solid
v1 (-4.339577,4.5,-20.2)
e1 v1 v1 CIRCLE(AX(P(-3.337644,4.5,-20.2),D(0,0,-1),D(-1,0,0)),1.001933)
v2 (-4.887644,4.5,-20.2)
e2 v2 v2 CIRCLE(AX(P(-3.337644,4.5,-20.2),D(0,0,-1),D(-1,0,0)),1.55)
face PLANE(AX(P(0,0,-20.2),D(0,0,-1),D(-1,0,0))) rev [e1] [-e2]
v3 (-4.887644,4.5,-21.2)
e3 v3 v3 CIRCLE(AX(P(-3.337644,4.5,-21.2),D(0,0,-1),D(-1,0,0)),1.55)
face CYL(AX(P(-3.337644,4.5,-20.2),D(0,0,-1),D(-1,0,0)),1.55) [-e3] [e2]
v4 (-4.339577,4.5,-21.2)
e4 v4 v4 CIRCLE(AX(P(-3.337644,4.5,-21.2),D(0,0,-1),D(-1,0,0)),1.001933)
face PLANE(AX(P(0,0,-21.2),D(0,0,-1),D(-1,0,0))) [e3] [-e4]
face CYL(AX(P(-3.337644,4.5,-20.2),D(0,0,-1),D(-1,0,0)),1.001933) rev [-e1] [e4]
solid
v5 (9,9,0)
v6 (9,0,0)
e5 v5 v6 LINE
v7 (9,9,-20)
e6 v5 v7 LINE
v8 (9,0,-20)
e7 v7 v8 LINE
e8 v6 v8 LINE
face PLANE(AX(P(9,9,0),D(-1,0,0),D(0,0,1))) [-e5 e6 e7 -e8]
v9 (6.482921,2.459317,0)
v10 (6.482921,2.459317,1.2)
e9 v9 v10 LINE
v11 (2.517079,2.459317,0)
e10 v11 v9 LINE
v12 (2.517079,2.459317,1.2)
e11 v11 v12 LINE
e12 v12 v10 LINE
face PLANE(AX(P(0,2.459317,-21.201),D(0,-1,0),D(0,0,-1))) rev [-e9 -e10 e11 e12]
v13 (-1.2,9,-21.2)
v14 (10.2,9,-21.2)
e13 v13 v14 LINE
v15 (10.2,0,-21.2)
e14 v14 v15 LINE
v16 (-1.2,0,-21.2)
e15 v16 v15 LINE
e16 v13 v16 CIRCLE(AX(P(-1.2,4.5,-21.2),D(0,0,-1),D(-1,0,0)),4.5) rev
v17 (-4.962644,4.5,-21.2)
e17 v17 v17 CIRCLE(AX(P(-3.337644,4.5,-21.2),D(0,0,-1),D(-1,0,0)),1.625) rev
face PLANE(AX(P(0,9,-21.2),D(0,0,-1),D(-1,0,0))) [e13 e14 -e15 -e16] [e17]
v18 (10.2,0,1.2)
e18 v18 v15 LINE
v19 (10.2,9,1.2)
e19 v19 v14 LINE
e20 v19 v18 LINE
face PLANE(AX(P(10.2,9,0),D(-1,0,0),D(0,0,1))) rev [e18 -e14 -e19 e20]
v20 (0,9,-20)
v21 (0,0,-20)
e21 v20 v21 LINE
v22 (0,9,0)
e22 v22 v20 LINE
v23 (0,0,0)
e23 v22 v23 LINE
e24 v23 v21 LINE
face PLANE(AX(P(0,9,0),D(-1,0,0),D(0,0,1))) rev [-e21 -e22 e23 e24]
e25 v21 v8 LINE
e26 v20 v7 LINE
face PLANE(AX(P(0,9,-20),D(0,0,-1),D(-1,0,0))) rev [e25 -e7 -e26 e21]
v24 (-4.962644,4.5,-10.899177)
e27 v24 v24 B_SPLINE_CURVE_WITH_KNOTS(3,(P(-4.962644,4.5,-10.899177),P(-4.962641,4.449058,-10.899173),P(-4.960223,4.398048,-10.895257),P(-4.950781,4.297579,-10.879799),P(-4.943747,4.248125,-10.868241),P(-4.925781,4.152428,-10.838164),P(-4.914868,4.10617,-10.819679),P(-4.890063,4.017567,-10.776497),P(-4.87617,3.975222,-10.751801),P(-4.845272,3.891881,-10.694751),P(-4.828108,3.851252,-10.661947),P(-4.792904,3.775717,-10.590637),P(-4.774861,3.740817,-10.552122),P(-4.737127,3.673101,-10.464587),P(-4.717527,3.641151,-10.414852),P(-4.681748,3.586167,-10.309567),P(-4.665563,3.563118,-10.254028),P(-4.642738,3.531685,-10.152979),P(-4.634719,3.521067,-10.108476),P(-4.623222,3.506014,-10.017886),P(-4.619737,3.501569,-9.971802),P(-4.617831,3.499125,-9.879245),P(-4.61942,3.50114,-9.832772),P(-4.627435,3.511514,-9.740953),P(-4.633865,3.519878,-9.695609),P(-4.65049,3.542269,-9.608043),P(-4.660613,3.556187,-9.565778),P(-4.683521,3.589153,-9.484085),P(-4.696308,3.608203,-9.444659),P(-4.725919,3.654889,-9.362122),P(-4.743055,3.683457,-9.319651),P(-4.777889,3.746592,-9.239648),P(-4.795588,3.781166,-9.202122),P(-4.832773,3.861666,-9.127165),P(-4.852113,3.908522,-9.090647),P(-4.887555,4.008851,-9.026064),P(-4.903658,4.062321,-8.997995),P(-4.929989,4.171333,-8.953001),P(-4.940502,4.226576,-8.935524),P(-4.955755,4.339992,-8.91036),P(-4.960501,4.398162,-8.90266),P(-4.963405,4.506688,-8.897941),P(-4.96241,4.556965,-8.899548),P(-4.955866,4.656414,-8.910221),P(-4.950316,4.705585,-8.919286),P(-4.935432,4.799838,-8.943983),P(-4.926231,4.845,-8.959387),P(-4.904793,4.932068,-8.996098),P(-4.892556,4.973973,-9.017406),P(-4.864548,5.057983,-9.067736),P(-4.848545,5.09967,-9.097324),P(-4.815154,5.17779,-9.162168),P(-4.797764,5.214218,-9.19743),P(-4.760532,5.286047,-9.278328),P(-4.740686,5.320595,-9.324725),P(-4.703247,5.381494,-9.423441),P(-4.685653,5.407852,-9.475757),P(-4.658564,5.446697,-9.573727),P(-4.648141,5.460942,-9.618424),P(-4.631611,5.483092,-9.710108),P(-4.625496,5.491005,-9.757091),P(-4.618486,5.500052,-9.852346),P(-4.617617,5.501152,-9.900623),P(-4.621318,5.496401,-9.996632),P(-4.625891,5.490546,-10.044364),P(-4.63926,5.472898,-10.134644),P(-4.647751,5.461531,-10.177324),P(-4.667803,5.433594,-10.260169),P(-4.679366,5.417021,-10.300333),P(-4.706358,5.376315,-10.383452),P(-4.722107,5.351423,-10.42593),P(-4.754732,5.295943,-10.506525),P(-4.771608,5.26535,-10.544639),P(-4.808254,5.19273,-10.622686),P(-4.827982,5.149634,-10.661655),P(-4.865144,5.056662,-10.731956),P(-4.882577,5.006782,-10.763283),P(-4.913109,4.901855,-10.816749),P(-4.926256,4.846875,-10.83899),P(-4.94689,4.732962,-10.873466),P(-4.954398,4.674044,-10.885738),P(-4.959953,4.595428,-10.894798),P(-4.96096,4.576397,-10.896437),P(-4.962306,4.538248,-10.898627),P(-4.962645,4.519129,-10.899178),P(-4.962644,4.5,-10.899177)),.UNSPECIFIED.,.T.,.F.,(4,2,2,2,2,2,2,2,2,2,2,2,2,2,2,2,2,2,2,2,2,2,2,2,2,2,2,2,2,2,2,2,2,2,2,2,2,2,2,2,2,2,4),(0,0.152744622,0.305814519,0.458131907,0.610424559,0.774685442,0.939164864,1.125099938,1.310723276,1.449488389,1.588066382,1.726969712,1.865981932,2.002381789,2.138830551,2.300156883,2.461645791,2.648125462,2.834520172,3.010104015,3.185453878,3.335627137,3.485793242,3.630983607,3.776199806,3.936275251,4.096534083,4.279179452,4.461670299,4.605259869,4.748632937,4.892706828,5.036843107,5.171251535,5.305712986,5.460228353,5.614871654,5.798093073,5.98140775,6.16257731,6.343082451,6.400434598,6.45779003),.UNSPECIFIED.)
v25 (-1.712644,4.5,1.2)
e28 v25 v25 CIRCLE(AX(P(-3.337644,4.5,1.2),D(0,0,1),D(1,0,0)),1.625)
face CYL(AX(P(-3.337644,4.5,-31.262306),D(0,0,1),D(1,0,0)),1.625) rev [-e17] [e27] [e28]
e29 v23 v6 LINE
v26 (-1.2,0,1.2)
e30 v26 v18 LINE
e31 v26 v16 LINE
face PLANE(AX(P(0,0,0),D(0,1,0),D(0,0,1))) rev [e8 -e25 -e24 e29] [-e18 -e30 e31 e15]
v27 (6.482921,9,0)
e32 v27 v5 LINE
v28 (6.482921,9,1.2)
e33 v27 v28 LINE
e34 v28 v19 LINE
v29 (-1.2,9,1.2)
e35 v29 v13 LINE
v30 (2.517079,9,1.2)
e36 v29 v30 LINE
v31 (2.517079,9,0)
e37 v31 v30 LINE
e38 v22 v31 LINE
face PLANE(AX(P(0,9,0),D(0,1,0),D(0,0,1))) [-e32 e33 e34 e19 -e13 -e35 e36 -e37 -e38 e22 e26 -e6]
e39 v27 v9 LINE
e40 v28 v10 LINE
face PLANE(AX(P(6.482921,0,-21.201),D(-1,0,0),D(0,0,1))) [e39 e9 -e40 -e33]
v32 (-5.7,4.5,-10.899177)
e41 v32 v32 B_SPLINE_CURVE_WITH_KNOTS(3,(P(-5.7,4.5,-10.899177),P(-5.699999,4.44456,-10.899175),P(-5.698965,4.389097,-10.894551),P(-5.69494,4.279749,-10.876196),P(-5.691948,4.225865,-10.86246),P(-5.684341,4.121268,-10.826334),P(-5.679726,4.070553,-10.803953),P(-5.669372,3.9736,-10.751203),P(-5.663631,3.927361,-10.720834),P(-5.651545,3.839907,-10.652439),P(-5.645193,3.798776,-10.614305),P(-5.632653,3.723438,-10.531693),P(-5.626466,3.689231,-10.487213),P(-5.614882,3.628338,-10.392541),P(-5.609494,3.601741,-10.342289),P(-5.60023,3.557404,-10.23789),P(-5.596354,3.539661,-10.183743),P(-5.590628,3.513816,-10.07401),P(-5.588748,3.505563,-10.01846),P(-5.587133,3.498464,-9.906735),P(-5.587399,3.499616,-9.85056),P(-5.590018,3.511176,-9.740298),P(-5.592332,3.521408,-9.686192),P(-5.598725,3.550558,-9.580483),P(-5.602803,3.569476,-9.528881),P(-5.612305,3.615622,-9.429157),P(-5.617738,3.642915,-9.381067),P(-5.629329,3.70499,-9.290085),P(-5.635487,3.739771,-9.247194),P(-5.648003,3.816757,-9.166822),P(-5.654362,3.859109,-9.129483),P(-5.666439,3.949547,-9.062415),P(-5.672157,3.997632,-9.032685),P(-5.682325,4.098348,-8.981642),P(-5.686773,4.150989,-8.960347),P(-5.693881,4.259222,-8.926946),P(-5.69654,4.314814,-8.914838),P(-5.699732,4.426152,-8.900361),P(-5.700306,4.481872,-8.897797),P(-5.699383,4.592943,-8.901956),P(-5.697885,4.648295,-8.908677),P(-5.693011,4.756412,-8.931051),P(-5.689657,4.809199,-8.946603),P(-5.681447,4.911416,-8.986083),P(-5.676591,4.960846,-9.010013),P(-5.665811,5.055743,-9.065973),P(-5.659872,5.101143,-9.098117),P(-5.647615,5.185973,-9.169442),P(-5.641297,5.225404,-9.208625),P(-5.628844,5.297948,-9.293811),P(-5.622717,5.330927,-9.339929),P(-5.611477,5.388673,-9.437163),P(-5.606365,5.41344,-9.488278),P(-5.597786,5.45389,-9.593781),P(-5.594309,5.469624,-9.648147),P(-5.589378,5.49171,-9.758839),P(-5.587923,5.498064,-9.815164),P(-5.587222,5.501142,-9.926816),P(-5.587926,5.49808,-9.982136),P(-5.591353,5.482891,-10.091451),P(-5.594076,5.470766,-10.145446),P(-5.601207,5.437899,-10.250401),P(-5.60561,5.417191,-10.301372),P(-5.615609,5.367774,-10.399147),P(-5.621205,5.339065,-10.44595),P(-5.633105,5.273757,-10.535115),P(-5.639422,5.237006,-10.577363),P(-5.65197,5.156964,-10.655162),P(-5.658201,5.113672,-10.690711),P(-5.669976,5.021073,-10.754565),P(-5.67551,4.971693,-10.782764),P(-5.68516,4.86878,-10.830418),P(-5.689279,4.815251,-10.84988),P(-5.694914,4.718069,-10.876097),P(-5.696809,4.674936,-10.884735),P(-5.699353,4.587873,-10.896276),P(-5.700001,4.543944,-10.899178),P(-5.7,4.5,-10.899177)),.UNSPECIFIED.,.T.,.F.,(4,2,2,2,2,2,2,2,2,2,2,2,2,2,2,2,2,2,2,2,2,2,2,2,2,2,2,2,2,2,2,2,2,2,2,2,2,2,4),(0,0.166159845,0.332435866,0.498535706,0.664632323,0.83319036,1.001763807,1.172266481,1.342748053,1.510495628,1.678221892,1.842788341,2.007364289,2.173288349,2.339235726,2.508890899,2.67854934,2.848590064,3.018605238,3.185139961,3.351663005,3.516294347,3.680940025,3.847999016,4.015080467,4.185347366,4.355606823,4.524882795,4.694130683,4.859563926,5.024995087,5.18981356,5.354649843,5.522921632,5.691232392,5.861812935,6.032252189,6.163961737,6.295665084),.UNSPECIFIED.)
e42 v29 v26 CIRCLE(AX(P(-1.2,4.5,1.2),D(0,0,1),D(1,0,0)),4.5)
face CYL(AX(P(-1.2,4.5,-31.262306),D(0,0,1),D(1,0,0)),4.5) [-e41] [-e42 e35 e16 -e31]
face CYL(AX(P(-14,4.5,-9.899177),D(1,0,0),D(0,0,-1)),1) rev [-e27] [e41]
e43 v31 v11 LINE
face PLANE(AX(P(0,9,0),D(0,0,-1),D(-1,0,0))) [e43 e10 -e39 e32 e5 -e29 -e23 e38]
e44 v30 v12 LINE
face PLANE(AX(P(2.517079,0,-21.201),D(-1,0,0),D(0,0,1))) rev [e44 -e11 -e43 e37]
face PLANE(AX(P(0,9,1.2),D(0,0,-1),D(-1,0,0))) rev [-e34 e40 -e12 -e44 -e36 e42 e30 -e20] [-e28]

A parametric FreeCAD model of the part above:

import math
import FreeCAD as App
import Part
import Sketcher
Q = App.Units.Quantity

doc = App.newDocument("Part")
body = doc.addObject("PartDesign::Body", "Body")

sketch1 = body.newObject("Sketcher::SketchObject", "Sketch")
sketch1.AttachmentSupport = (doc.getObject("XZ_Plane"), [""])
sketch1.MapMode = "FlatFace"
sketch1.addGeometry([
    Part.LineSegment(App.Vector(-1, -21, 0), App.Vector(-1, 1, 0)),
    Part.LineSegment(App.Vector(-1, 1, 0), App.Vector(10, 1, 0)),
    Part.LineSegment(App.Vector(10, 1, 0), App.Vector(10, -21, 0)),
    Part.LineSegment(App.Vector(10, -21, 0), App.Vector(-1, -21, 0)),
    Part.LineSegment(App.Vector(9, 0, 0), App.Vector(0, 0, 0)),
    Part.LineSegment(App.Vector(0, 0, 0), App.Vector(0, -20, 0)),
    Part.LineSegment(App.Vector(0, -20, 0), App.Vector(9, -20, 0)),
    Part.LineSegment(App.Vector(9, -20, 0), App.Vector(9, 0, 0)),
], False)
sketch1.addConstraint([
    Sketcher.Constraint("Coincident", 0, 2, 1, 1),
    Sketcher.Constraint("Coincident", 1, 2, 2, 1),
    Sketcher.Constraint("Coincident", 2, 2, 3, 1),
    Sketcher.Constraint("Coincident", 3, 2, 0, 1),
    Sketcher.Constraint("Coincident", 4, 2, 5, 1),
    Sketcher.Constraint("Coincident", 5, 2, 6, 1),
    Sketcher.Constraint("Coincident", 6, 2, 7, 1),
    Sketcher.Constraint("Coincident", 7, 2, 4, 1),
    Sketcher.Constraint("Vertical", 0),
    Sketcher.Constraint("Horizontal", 1),
    Sketcher.Constraint("Vertical", 2),
    Sketcher.Constraint("Horizontal", 3),
    Sketcher.Constraint("Horizontal", 4),
    Sketcher.Constraint("Vertical", 5),
    Sketcher.Constraint("Horizontal", 6),
    Sketcher.Constraint("Vertical", 7),
    Sketcher.Constraint("Coincident", 4, 2, -1, 1),
    Sketcher.Constraint("DistanceX", 4, 2, 4, 1, Q("9 mm")),
    Sketcher.Constraint("DistanceY", 5, 2, 5, 1, Q("20 mm")),
    Sketcher.Constraint("DistanceX", 1, 1, 1, 2, Q("11.4 mm")),
    Sketcher.Constraint("DistanceY", 0, 1, 0, 2, Q("22.4 mm")),
    Sketcher.Constraint("DistanceX", 0, 2, -1, 1, Q("1.2 mm")),
    Sketcher.Constraint("DistanceY", -1, 1, 0, 2, Q("1.2 mm")),
])
pad1 = body.newObject("PartDesign::Pad", "Pad")
pad1.Profile = sketch1
pad1.Length = 9
pad1.Reversed = True

sketch2 = body.newObject("Sketcher::SketchObject", "Sketch001")
sketch2.AttachmentSupport = (doc.getObject("XY_Plane"), [""])
sketch2.MapMode = "FlatFace"
sketch2.AttachmentOffset = App.Placement(App.Vector(0, 0, 1.2), App.Rotation())
sketch2.addGeometry([
    Part.LineSegment(App.Vector(2.5, 9, 0), App.Vector(2.5, 2.5, 0)),
    Part.LineSegment(App.Vector(2.5, 2.5, 0), App.Vector(6.5, 2.5, 0)),
    Part.LineSegment(App.Vector(6.5, 2.5, 0), App.Vector(6.5, 9, 0)),
    Part.LineSegment(App.Vector(6.5, 9, 0), App.Vector(2.5, 9, 0)),
], False)
sketch2.addConstraint([
    Sketcher.Constraint("Coincident", 0, 2, 1, 1),
    Sketcher.Constraint("Coincident", 1, 2, 2, 1),
    Sketcher.Constraint("Coincident", 2, 2, 3, 1),
    Sketcher.Constraint("Coincident", 3, 2, 0, 1),
    Sketcher.Constraint("Vertical", 0),
    Sketcher.Constraint("Horizontal", 1),
    Sketcher.Constraint("Vertical", 2),
    Sketcher.Constraint("Horizontal", 3),
    Sketcher.Constraint("DistanceY", -1, 1, 2, 2, Q("9 mm")),
    Sketcher.Constraint("DistanceX", 1, 1, 1, 2, Q("3.965842 mm")),
    Sketcher.Constraint("DistanceY", 0, 2, 0, 1, Q("6.540683 mm")),
    Sketcher.Constraint("DistanceX", -1, 1, 0, 2, Q("2.517079 mm")),
])
pocket1 = body.newObject("PartDesign::Pocket", "Pocket")
pocket1.Profile = sketch2
pocket1.Type = "UpToFirst"

sketch3 = body.newObject("Sketcher::SketchObject", "Sketch002")
sketch3.AttachmentSupport = (doc.getObject("XY_Plane"), [""])
sketch3.MapMode = "FlatFace"
sketch3.AttachmentOffset = App.Placement(App.Vector(0, 0, 1.2), App.Rotation())
sketch3.addGeometry([
    Part.LineSegment(App.Vector(-1.2, 0, 0), App.Vector(-1.2, 9, 0)),
    Part.ArcOfCircle(Part.Circle(App.Vector(-1.2, 4.5, 0), App.Vector(0, 0, 1), 4.5), math.radians(90), math.radians(270)),
    Part.Circle(App.Vector(-3.3, 4.5, 0), App.Vector(0, 0, 1), 1.6),
], False)
sketch3.addConstraint([
    Sketcher.Constraint("Coincident", 0, 1, 1, 2),
    Sketcher.Constraint("Coincident", 1, 1, 0, 2),
    Sketcher.Constraint("Vertical", 0),
    Sketcher.Constraint("PointOnObject", 0, 1, -1),
    Sketcher.Constraint("Horizontal", 1, 3, 2, 3),
    Sketcher.Constraint("Vertical", 1, 3, 0, 1),
    Sketcher.Constraint("Radius", 1, Q("4.5 mm")),
    Sketcher.Constraint("Diameter", 2, Q("3.25 mm")),
    Sketcher.Constraint("DistanceX", 1, 3, -1, 1, Q("1.2 mm")),
    Sketcher.Constraint("DistanceX", 2, 3, -1, 1, Q("3.337644 mm")),
])
pad2 = body.newObject("PartDesign::Pad", "Pad001")
pad2.Profile = sketch3
pad2.Length = 22.4
pad2.Reversed = True

sketch4 = body.newObject("Sketcher::SketchObject", "Sketch003")
sketch4.AttachmentSupport = (doc.getObject("YZ_Plane"), [""])
sketch4.MapMode = "FlatFace"
sketch4.AttachmentOffset = App.Placement(App.Vector(0, 0, -4), App.Rotation())
sketch4.addGeometry(Part.Circle(App.Vector(4.5, -9.9, 0), App.Vector(0, 0, 1), 1), False)
sketch4.addConstraint([
    Sketcher.Constraint("Diameter", 0, Q("2 mm")),
    Sketcher.Constraint("DistanceX", -1, 1, 0, 3, Q("4.5 mm")),
    Sketcher.Constraint("DistanceY", 0, 3, -1, 1, Q("9.899177 mm")),
])
pocket2 = body.newObject("PartDesign::Pocket", "Pocket001")
pocket2.Profile = sketch4
pocket2.Length = 10
body2 = doc.addObject("PartDesign::Body", "Body001")

sketch5 = body2.newObject("Sketcher::SketchObject", "Sketch004")
sketch5.AttachmentSupport = (doc.getObject("XY_Plane001"), [""])
sketch5.MapMode = "FlatFace"
sketch5.AttachmentOffset = App.Placement(App.Vector(0, 0, -21.2), App.Rotation())
sketch5.addGeometry([
    Part.Circle(App.Vector(-3.3, 4.5, 0), App.Vector(0, 0, 1), 1.6),
    Part.Circle(App.Vector(-3.3, 4.5, 0), App.Vector(0, 0, 1), 1),
], False)
sketch5.addConstraint([
    Sketcher.Constraint("Coincident", 1, 3, 0, 3),
    Sketcher.Constraint("Diameter", 0, Q("3.1 mm")),
    Sketcher.Constraint("DistanceY", -1, 1, 0, 3, Q("4.5 mm")),
    Sketcher.Constraint("Diameter", 1, Q("2.003866 mm")),
    Sketcher.Constraint("DistanceX", 0, 3, -1, 1, Q("3.337644 mm")),
])
pad3 = body2.newObject("PartDesign::Pad", "Pad002")
pad3.Profile = sketch5
pad3.Length = 1

doc.recompute()
